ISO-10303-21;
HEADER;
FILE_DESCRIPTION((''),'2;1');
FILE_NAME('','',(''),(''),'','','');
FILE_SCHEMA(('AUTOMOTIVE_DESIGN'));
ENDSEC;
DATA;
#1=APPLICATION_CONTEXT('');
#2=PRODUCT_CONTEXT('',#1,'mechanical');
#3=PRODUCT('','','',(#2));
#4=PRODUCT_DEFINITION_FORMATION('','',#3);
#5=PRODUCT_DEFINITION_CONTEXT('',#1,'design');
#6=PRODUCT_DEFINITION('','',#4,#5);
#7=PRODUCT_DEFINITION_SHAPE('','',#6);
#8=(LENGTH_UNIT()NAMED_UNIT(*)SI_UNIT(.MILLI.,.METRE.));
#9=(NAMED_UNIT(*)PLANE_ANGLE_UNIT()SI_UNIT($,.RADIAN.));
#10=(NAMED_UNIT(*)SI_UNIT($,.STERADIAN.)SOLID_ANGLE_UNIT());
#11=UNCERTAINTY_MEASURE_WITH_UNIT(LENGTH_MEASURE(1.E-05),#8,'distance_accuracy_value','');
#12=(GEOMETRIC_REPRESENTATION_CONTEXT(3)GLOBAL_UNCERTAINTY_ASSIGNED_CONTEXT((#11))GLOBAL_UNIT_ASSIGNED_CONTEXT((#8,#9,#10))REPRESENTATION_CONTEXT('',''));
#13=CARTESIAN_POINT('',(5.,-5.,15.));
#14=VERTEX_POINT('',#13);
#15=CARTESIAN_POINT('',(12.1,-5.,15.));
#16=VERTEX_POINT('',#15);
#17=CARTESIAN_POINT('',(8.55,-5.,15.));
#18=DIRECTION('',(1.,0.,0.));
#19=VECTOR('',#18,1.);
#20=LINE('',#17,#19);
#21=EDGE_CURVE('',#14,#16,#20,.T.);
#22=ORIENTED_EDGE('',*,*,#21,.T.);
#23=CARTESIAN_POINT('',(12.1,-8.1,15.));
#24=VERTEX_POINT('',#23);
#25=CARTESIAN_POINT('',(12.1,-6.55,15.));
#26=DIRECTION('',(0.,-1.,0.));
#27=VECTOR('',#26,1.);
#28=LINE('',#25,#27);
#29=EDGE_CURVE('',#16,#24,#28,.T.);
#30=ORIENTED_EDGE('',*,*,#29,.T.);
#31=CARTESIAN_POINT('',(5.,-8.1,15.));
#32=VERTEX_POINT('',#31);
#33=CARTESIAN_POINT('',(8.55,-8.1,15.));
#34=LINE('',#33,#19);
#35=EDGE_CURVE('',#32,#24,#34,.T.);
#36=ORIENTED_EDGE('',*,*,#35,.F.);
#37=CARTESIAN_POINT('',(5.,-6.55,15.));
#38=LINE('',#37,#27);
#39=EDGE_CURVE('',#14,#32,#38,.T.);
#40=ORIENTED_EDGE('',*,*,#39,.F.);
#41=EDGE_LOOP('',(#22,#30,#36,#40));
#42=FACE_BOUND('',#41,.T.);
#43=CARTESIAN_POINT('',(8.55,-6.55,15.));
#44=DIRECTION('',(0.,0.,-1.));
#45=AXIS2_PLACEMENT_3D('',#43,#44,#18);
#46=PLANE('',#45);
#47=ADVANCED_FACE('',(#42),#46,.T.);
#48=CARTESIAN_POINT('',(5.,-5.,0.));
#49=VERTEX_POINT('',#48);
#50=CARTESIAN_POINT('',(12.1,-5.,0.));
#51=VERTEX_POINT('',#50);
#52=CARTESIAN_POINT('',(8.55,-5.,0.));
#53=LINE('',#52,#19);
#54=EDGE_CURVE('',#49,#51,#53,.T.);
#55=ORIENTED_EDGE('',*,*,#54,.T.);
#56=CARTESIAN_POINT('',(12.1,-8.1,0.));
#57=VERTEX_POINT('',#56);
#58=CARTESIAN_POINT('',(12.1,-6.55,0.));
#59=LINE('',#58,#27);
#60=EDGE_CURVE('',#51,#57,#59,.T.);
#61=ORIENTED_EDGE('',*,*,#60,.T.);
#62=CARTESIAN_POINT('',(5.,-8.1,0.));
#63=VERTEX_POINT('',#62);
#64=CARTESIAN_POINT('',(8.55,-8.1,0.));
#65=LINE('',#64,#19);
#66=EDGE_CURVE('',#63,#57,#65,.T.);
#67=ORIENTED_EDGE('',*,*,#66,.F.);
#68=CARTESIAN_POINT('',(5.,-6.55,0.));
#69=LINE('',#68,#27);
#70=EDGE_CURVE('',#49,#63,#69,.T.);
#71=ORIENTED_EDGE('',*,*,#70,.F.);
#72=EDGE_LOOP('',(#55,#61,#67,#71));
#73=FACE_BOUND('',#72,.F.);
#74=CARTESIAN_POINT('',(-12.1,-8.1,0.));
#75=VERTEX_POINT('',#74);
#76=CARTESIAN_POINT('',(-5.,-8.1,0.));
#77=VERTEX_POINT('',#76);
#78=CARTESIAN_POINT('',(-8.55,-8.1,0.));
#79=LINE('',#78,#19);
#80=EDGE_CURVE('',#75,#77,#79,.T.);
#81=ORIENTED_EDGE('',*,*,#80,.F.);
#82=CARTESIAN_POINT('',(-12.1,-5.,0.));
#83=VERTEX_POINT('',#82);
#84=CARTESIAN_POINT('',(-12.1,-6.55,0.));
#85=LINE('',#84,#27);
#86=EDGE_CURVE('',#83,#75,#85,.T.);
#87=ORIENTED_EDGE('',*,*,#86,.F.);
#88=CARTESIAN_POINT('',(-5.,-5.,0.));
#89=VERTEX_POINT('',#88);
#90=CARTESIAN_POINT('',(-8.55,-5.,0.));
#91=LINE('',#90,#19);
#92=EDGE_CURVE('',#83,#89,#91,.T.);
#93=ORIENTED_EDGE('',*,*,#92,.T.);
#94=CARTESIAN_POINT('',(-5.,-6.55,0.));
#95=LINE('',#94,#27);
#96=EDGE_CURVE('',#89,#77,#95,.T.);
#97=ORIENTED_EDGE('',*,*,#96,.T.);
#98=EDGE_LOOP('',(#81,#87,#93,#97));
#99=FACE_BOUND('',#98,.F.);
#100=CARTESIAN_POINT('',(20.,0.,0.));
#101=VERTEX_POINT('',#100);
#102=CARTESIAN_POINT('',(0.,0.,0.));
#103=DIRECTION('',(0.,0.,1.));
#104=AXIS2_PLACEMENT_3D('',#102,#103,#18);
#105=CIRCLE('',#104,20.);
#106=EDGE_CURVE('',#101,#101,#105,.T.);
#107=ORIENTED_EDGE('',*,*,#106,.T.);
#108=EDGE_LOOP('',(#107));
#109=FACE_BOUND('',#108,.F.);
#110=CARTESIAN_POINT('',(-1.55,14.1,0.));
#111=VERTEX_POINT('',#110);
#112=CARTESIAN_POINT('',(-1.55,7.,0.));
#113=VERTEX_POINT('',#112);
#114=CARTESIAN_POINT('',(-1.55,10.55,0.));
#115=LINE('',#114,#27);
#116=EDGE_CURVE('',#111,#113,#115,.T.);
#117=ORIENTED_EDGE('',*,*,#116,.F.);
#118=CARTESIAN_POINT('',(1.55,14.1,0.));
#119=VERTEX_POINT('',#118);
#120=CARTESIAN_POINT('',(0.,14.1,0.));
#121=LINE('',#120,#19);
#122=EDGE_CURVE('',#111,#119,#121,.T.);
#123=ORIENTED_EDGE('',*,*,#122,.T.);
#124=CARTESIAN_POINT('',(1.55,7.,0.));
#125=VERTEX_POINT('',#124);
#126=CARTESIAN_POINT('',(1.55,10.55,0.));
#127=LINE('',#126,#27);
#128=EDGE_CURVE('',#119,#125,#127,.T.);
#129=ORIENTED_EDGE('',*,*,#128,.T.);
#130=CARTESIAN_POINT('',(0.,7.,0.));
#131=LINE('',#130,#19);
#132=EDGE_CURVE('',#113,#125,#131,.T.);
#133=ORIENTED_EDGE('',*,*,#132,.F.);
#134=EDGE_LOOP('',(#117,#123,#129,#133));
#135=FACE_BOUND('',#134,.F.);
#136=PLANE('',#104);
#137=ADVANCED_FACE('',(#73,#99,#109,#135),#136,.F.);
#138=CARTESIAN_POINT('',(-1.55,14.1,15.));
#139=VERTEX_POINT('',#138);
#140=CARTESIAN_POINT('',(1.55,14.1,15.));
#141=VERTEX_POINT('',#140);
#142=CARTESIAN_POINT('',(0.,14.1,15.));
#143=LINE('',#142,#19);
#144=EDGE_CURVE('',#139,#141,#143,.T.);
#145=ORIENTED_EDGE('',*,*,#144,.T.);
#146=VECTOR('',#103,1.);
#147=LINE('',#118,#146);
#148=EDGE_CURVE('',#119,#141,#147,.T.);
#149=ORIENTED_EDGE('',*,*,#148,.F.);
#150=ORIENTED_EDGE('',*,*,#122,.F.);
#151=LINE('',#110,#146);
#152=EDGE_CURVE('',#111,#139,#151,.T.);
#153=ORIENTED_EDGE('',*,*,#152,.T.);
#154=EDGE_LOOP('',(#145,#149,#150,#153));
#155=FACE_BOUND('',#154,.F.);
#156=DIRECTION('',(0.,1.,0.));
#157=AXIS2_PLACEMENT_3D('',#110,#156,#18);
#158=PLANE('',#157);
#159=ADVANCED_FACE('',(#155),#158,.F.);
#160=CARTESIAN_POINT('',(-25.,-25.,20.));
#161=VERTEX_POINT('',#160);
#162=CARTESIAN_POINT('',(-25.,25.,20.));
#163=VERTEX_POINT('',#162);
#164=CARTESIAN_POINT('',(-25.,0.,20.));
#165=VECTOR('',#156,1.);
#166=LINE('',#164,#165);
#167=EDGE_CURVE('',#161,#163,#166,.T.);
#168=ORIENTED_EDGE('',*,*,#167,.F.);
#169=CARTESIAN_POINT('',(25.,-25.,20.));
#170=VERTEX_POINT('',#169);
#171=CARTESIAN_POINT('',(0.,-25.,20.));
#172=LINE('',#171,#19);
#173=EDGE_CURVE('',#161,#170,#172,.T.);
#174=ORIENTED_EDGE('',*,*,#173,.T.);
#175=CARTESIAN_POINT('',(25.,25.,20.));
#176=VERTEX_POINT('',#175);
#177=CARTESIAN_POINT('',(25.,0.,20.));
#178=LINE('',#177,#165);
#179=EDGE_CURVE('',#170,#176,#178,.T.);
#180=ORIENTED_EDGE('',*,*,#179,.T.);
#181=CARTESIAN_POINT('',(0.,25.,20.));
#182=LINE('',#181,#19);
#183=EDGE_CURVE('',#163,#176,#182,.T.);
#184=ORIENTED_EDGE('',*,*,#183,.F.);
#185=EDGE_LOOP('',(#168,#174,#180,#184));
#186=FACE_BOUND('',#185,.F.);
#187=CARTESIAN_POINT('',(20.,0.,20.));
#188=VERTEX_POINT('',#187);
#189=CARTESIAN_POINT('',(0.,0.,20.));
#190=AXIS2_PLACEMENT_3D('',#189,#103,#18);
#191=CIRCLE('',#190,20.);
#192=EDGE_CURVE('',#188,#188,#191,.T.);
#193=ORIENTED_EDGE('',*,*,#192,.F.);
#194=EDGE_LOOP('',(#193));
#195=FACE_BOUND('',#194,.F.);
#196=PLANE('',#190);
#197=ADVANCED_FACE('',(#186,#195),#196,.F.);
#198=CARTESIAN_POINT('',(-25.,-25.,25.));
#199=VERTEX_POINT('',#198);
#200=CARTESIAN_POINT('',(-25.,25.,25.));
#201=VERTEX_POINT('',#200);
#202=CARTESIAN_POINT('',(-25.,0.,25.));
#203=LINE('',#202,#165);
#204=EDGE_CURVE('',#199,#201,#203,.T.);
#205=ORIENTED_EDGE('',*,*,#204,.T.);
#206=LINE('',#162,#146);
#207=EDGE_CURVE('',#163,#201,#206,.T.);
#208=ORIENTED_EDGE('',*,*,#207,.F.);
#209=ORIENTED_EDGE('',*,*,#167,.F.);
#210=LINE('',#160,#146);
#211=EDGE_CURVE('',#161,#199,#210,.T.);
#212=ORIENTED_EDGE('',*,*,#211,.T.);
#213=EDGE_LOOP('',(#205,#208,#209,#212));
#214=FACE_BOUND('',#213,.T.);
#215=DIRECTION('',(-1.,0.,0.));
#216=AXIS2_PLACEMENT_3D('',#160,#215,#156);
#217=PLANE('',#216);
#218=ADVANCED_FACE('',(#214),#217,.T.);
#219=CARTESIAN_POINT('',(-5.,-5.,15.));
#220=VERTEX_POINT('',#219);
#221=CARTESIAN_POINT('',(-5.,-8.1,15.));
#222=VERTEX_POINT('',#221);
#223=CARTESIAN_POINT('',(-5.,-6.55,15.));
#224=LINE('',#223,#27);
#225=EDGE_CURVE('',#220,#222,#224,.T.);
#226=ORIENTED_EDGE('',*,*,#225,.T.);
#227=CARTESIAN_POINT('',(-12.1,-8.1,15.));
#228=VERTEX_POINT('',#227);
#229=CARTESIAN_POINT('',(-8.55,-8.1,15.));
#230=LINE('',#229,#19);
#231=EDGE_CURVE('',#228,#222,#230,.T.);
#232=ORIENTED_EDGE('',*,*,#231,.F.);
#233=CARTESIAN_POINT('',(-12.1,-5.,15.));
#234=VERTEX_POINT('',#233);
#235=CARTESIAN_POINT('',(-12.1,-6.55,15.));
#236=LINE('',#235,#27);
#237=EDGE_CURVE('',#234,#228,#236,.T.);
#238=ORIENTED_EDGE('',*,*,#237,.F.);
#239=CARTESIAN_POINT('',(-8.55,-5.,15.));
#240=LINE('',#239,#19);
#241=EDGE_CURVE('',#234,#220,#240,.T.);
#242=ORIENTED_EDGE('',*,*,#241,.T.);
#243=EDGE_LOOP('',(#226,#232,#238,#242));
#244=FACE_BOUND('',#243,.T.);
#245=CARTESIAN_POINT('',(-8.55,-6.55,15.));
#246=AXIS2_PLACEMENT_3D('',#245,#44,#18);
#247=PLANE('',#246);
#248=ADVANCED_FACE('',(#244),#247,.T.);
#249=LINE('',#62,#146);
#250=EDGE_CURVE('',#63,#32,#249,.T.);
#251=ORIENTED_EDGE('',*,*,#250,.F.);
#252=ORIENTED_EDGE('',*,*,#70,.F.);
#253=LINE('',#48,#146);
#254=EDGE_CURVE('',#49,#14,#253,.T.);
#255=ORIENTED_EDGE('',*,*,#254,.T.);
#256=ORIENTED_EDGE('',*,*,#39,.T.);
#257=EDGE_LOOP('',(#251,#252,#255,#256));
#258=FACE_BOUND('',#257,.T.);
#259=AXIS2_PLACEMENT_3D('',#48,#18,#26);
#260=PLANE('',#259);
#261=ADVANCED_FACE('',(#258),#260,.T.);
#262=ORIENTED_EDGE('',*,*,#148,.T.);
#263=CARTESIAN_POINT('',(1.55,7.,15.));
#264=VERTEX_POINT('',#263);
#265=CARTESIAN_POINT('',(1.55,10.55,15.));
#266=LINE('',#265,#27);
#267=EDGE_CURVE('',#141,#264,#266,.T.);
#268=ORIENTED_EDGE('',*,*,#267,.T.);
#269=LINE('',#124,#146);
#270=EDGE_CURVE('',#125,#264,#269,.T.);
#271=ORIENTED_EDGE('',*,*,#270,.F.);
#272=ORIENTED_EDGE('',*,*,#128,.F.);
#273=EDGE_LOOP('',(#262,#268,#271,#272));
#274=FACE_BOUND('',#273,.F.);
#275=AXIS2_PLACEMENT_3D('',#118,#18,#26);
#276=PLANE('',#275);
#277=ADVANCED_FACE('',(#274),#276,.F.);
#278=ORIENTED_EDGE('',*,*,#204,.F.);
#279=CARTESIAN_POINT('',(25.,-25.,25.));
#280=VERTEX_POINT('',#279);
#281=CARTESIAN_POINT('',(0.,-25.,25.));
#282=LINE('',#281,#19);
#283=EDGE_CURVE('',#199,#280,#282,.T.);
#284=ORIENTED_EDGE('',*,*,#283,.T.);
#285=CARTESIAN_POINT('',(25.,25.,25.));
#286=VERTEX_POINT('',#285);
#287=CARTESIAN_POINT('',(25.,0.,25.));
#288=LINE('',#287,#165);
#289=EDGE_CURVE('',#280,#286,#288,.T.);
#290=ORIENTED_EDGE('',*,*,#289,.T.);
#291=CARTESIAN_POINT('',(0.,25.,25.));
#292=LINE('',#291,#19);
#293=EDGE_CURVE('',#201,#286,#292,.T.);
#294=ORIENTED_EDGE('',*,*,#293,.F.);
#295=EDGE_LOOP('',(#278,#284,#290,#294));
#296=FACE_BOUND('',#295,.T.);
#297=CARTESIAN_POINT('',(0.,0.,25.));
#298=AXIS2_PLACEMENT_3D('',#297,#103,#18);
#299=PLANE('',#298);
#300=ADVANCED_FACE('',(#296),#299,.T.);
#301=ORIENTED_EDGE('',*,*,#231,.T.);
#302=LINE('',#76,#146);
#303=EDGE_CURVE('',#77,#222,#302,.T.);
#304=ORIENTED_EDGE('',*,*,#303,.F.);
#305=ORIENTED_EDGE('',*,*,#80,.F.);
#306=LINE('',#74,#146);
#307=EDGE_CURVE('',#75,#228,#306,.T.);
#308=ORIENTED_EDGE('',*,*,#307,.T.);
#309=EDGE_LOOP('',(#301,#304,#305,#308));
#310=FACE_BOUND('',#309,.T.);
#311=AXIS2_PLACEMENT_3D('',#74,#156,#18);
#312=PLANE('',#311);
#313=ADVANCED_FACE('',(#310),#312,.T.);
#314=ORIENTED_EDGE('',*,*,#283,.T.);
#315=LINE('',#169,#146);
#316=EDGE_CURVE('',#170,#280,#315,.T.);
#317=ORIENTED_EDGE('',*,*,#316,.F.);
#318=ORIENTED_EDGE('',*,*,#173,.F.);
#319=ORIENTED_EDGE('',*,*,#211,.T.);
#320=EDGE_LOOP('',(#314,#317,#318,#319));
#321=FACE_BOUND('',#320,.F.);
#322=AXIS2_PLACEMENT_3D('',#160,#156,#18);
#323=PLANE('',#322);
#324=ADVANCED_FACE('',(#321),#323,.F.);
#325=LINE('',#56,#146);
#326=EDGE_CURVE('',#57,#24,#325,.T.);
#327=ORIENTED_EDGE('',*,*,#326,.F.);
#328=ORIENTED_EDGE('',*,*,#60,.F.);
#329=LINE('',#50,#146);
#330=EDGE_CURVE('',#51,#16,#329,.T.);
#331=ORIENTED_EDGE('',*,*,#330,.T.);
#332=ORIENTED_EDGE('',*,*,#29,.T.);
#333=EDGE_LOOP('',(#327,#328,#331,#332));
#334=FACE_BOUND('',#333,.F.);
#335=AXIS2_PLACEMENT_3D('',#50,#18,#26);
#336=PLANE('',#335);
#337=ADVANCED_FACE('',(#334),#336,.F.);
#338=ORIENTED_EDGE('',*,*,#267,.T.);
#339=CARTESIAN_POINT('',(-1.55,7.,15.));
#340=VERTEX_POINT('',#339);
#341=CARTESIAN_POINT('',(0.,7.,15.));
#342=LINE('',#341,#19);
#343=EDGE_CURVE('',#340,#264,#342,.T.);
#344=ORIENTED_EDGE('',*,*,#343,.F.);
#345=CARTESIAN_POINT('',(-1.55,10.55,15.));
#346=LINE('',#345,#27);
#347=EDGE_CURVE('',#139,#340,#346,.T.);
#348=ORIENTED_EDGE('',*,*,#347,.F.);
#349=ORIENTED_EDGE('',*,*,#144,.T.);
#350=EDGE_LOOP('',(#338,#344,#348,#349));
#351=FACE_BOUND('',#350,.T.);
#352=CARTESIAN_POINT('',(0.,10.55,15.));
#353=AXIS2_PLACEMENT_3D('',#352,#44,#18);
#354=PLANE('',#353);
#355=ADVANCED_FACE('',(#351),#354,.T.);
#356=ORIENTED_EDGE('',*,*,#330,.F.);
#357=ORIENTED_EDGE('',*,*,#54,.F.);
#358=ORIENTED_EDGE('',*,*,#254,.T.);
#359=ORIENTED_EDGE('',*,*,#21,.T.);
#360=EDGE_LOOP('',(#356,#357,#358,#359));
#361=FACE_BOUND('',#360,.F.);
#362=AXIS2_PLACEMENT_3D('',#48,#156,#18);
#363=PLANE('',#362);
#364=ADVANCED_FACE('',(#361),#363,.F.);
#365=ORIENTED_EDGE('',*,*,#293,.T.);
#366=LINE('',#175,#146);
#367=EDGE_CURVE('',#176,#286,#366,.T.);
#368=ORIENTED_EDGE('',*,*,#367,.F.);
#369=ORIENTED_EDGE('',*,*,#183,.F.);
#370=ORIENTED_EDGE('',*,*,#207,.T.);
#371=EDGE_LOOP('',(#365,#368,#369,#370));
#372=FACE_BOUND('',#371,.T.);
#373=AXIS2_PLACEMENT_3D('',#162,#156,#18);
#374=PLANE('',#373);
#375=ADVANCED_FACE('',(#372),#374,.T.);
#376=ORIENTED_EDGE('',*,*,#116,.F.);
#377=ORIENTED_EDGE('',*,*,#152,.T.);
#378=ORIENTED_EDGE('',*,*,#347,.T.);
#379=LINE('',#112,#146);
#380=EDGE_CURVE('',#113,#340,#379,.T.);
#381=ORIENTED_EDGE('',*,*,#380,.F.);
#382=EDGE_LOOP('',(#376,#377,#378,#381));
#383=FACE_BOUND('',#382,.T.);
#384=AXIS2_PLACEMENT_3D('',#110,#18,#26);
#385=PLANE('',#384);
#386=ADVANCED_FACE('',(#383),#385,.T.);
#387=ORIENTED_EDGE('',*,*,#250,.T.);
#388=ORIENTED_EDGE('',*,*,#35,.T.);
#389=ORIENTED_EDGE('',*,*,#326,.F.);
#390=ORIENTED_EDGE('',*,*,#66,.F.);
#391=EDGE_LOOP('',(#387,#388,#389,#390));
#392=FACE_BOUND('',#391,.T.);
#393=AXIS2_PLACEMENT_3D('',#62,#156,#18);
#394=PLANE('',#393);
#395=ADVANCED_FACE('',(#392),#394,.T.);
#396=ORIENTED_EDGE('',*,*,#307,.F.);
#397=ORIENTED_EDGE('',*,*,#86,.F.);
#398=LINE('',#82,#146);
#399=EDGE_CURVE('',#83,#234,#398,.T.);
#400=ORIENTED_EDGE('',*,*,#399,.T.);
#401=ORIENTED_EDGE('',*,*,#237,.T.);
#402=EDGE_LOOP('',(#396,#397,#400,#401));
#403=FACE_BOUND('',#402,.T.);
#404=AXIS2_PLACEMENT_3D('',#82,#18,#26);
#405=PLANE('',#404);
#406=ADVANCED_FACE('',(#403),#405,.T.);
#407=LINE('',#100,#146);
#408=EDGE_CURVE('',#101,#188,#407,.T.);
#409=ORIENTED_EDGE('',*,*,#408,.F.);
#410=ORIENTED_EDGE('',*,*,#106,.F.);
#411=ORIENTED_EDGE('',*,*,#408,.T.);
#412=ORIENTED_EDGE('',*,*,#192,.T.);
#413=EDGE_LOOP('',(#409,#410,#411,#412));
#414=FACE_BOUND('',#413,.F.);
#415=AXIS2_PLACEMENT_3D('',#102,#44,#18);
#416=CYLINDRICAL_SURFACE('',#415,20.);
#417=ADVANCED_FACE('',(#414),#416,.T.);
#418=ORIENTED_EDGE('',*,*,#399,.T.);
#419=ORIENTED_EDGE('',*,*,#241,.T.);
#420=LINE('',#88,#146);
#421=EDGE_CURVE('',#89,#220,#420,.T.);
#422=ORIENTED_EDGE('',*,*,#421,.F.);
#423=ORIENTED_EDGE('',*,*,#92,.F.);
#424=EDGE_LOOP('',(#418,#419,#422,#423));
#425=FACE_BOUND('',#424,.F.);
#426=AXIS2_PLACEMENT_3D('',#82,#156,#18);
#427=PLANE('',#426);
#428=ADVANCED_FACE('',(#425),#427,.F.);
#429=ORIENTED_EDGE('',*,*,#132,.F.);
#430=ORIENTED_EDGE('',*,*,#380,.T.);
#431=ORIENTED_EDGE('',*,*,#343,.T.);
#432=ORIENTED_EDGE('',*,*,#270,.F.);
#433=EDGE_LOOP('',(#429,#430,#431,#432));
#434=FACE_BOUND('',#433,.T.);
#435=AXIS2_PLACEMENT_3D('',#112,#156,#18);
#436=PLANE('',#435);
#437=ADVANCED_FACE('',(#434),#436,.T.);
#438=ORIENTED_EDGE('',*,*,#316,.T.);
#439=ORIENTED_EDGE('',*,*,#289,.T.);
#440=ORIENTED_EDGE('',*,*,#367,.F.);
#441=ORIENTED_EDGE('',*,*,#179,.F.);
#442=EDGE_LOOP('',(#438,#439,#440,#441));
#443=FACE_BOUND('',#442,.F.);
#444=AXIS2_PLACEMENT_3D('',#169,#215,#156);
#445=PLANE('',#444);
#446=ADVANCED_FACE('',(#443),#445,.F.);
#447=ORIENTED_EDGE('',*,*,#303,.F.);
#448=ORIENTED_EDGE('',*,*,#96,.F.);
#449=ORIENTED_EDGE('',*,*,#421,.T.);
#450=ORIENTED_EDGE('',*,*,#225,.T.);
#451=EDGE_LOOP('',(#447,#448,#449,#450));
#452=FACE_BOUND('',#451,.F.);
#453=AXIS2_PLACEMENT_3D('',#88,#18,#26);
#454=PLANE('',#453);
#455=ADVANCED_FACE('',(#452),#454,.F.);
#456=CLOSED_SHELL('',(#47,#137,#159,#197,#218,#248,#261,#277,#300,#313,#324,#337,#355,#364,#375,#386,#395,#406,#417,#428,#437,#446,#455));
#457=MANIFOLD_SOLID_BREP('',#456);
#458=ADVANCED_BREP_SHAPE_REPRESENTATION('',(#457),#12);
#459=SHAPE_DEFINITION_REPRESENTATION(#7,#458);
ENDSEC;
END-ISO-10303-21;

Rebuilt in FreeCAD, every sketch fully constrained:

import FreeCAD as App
import Part
import Sketcher
from FreeCAD import Vector
Q = App.Units.Quantity


def add_polygon(sketch, points):
    """Adds a closed chain of lines whose ends are joined by coincident constraints."""
    first, n = sketch.GeometryCount, len(points)
    for a, b in zip(points, points[1:] + points[:1]):
        sketch.addGeometry(Part.LineSegment(App.Vector(*a, 0), App.Vector(*b, 0)), False)
    for i in range(n):
        sketch.addConstraint(Sketcher.Constraint("Coincident", first + i, 2, first + (i + 1) % n, 1))

doc = App.newDocument("Part")
params = doc.addObject("Spreadsheet::Sheet", "Params")
for row, (alias, value) in enumerate([
    ("sketch1_diameter", "40 mm"),
    ("pad1_length", "20 mm"),
    ("sketch2_width", "3.1 mm"),
    ("sketch2_width2", "7.1 mm"),
    ("pocket1_length", "15 mm"),
    ("sketch3_width", "50 mm"),
    ("pad2_length", "5 mm"),
], start=1):
    params.set(f"A{row}", alias)
    params.set(f"B{row}", "=" + value)
    params.setAlias(f"B{row}", alias)

body = doc.addObject("PartDesign::Body", "Body")

# Sketch on XY plane
sketch1 = body.newObject("Sketcher::SketchObject", "Sketch")
sketch1.AttachmentSupport = (doc.getObject("XY_Plane"), [""])
sketch1.MapMode = "FlatFace"
sketch1.addGeometry(Part.Circle(Vector(0, 0, 0), Vector(0, 0, 1), 20), False)
sketch1.addConstraint([
    Sketcher.Constraint("Coincident", 0, 3, -1, 1),
    Sketcher.Constraint("Diameter", 0, Q("40 mm")),
])
sketch1.setExpression("Constraints[1]", "Params.sketch1_diameter")
pad1 = body.newObject("PartDesign::Pad", "Pad")
pad1.Profile = sketch1
pad1.setExpression("Length", "Params.pad1_length")

# Sketch on XY plane
sketch2 = body.newObject("Sketcher::SketchObject", "Sketch001")
sketch2.AttachmentSupport = (doc.getObject("XY_Plane"), [""])
sketch2.MapMode = "FlatFace"
add_polygon(sketch2, [(-1.55, 7), (-1.55, 14.1), (1.55, 14.1), (1.55, 7)])  # lines 0-3
add_polygon(sketch2, [(5, -8.1), (5, -5), (12.1, -5), (12.1, -8.1)])  # lines 4-7
add_polygon(sketch2, [(-12.1, -8.1), (-12.1, -5), (-5, -5), (-5, -8.1)])  # lines 8-11
sketch2.addConstraint([
    Sketcher.Constraint("Vertical", 0),
    Sketcher.Constraint("Horizontal", 1),
    Sketcher.Constraint("Vertical", 2),
    Sketcher.Constraint("Horizontal", 3),
    Sketcher.Constraint("Vertical", 4),
    Sketcher.Constraint("Horizontal", 5),
    Sketcher.Constraint("Vertical", 6),
    Sketcher.Constraint("Horizontal", 7),
    Sketcher.Constraint("Vertical", 8),
    Sketcher.Constraint("Horizontal", 9),
    Sketcher.Constraint("Vertical", 10),
    Sketcher.Constraint("Horizontal", 11),
    Sketcher.Constraint("Symmetric", 5, 2, 8, 2, -2),
    Sketcher.Constraint("Symmetric", 7, 2, 10, 2, -2),
    Sketcher.Constraint("Equal", 11, 0),
    Sketcher.Constraint("Equal", 3, 4),
    Sketcher.Constraint("DistanceX", 1, 1, 1, 2, Q("3.1 mm")),
    Sketcher.Constraint("DistanceX", 5, 1, 5, 2, Q("7.1 mm")),
    Sketcher.Constraint("DistanceY", -1, 1, 2, 2, Q("7 mm")),
    Sketcher.Constraint("DistanceX", -1, 1, 4, 2, Q("5 mm")),
    Sketcher.Constraint("DistanceY", 4, 2, -1, 1, Q("5 mm")),
    Sketcher.Constraint("DistanceX", 0, 2, -1, 1, Q("1.55 mm")),
])
sketch2.setExpression("Constraints[28]", "Params.sketch2_width")
sketch2.setExpression("Constraints[29]", "Params.sketch2_width2")
pocket1 = body.newObject("PartDesign::Pocket", "Pocket")
pocket1.Profile = sketch2
pocket1.setExpression("Length", "Params.pocket1_length")
pocket1.Reversed = True

# Sketch on XY plane
sketch3 = body.newObject("Sketcher::SketchObject", "Sketch002")
sketch3.AttachmentSupport = (doc.getObject("XY_Plane"), [""])
sketch3.MapMode = "FlatFace"
sketch3.AttachmentOffset = App.Placement(Vector(0, 0, 20), App.Rotation())
add_polygon(sketch3, [(-25, 25), (-25, -25), (25, -25), (25, 25)])  # lines 0-3
sketch3.addConstraint([
    Sketcher.Constraint("Vertical", 0),
    Sketcher.Constraint("Horizontal", 1),
    Sketcher.Constraint("Vertical", 2),
    Sketcher.Constraint("Horizontal", 3),
    Sketcher.Constraint("Symmetric", 0, 2, 2, 2, -1, 1),
    Sketcher.Constraint("Equal", 3, 0),
    Sketcher.Constraint("DistanceX", 1, 1, 1, 2, Q("50 mm")),
])
sketch3.setExpression("Constraints[10]", "Params.sketch3_width")
pad2 = body.newObject("PartDesign::Pad", "Pad001")
pad2.Profile = sketch3
pad2.setExpression("Length", "Params.pad2_length")

doc.recompute()
